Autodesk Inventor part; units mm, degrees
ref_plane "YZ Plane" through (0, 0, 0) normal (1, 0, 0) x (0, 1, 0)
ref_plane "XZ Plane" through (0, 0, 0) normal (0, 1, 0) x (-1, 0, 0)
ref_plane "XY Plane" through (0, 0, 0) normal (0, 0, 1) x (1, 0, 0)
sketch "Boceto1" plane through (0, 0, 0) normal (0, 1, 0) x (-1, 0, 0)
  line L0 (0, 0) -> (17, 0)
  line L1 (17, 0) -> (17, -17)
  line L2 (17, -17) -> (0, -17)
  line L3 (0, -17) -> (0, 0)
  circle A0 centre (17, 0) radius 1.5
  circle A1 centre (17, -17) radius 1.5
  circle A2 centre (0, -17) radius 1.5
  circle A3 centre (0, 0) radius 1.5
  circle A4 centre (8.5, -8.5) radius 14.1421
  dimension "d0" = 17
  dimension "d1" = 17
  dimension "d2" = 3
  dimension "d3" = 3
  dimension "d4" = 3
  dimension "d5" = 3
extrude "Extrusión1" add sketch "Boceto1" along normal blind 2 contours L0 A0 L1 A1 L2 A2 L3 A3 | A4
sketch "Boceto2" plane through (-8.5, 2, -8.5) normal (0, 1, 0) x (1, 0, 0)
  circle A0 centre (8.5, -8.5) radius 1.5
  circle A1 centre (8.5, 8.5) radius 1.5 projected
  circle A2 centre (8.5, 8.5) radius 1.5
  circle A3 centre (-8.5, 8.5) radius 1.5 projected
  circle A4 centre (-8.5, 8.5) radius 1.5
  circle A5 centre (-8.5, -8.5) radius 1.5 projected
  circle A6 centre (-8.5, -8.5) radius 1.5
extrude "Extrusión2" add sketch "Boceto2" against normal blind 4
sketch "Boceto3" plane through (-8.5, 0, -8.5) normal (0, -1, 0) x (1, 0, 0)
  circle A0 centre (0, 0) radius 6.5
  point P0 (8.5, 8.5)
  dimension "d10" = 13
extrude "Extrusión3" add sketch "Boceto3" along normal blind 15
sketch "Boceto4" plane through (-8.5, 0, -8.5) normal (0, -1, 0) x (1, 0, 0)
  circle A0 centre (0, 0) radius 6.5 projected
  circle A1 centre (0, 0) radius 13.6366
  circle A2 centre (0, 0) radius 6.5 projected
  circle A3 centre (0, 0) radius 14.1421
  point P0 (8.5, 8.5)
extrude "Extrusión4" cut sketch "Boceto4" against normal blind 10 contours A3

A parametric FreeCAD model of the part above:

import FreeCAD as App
import Part
import Sketcher
from FreeCAD import Vector
Q = App.Units.Quantity

doc = App.newDocument("Part")
body = doc.addObject("PartDesign::Body", "Body")

sketch1 = body.newObject("Sketcher::SketchObject", "Sketch")
sketch1.AttachmentSupport = (doc.getObject("XZ_Plane"), [""])
sketch1.MapMode = "FlatFace"
sketch1.addGeometry([
    Part.Circle(Vector(-8.5, -8.5, 0), Vector(0, 0, 1), 14.1),
    Part.Circle(Vector(-17, 0, 0), Vector(0, 0, 1), 1.5),
    Part.Circle(Vector(-17, -17, 0), Vector(0, 0, 1), 1.5),
    Part.Circle(Vector(0, -17, 0), Vector(0, 0, 1), 1.5),
    Part.Circle(Vector(0, 0, 0), Vector(0, 0, 1), 1.5),
], False)
sketch1.addConstraint([
    Sketcher.Constraint("Coincident", 4, 3, -1, 1),
    Sketcher.Constraint("Equal", 1, 2),
    Sketcher.Constraint("Equal", 2, 3),
    Sketcher.Constraint("Equal", 3, 4),
    Sketcher.Constraint("PointOnObject", 1, 3, -1),
    Sketcher.Constraint("PointOnObject", 3, 3, -2),
    Sketcher.Constraint("Horizontal", 2, 3, 3, 3),
    Sketcher.Constraint("Vertical", 1, 3, 2, 3),
    Sketcher.Constraint("Diameter", 1, Q("3 mm")),
    Sketcher.Constraint("DistanceX", 1, 3, -1, 1, Q("17 mm")),
    Sketcher.Constraint("DistanceY", 2, 3, -1, 1, Q("17 mm")),
    Sketcher.Constraint("Diameter", 0, Q("28.2842 mm")),
    Sketcher.Constraint("DistanceX", 0, 3, -1, 1, Q("8.5 mm")),
    Sketcher.Constraint("DistanceY", 0, 3, -1, 1, Q("8.5 mm")),
])
pad1 = body.newObject("PartDesign::Pad", "Pad")
pad1.Profile = sketch1
pad1.Length = 2
pad1.Reversed = True

sketch2 = body.newObject("Sketcher::SketchObject", "Sketch001")
sketch2.AttachmentSupport = (doc.getObject("XZ_Plane"), [""])
sketch2.MapMode = "FlatFace"
sketch2.AttachmentOffset = App.Placement(Vector(0, 0, -2), App.Rotation())
sketch2.addGeometry([
    Part.Circle(Vector(0, 0, 0), Vector(0, 0, 1), 1.5),
    Part.Circle(Vector(0, -17, 0), Vector(0, 0, 1), 1.5),
    Part.Circle(Vector(-17, -17, 0), Vector(0, 0, 1), 1.5),
    Part.Circle(Vector(-17, 0, 0), Vector(0, 0, 1), 1.5),
], False)
sketch2.addConstraint([
    Sketcher.Constraint("Coincident", 0, 3, -1, 1),
    Sketcher.Constraint("Equal", 0, 1),
    Sketcher.Constraint("Equal", 1, 2),
    Sketcher.Constraint("Equal", 2, 3),
    Sketcher.Constraint("PointOnObject", 1, 3, -2),
    Sketcher.Constraint("PointOnObject", 3, 3, -1),
    Sketcher.Constraint("Horizontal", 1, 3, 2, 3),
    Sketcher.Constraint("Vertical", 2, 3, 3, 3),
    Sketcher.Constraint("Diameter", 0, Q("3 mm")),
    Sketcher.Constraint("DistanceY", 1, 3, -1, 1, Q("17 mm")),
    Sketcher.Constraint("DistanceX", 2, 3, -1, 1, Q("17 mm")),
])
pad2 = body.newObject("PartDesign::Pad", "Pad001")
pad2.Profile = sketch2
pad2.Length = 4

sketch3 = body.newObject("Sketcher::SketchObject", "Sketch002")
sketch3.AttachmentSupport = (doc.getObject("XZ_Plane"), [""])
sketch3.MapMode = "FlatFace"
sketch3.addGeometry(Part.Circle(Vector(-8, -8, 0), Vector(0, 0, 1), 6), False)
sketch3.addConstraint([
    Sketcher.Constraint("Diameter", 0, Q("13 mm")),
    Sketcher.Constraint("DistanceX", 0, 3, -1, 1, Q("8.5 mm")),
    Sketcher.Constraint("DistanceY", 0, 3, -1, 1, Q("8.5 mm")),
])
pad3 = body.newObject("PartDesign::Pad", "Pad002")
pad3.Profile = sketch3
pad3.Length = 15

sketch4 = body.newObject("Sketcher::SketchObject", "Sketch003")
sketch4.AttachmentSupport = (doc.getObject("XZ_Plane"), [""])
sketch4.MapMode = "FlatFace"
sketch4.addGeometry([
    Part.Circle(Vector(-8, -8, 0), Vector(0, 0, 1), 14),
    Part.Circle(Vector(-8, -8, 0), Vector(0, 0, 1), 14),
], False)
sketch4.addConstraint([
    Sketcher.Constraint("Coincident", 1, 3, 0, 3),
    Sketcher.Constraint("Diameter", 0, Q("28.2842 mm")),
    Sketcher.Constraint("Diameter", 1, Q("27.2732 mm")),
    Sketcher.Constraint("DistanceX", 0, 3, -1, 1, Q("8.5 mm")),
    Sketcher.Constraint("DistanceY", 0, 3, -1, 1, Q("8.5 mm")),
])
pocket1 = body.newObject("PartDesign::Pocket", "Pocket")
pocket1.Profile = sketch4
pocket1.Length = 10

doc.recompute()
